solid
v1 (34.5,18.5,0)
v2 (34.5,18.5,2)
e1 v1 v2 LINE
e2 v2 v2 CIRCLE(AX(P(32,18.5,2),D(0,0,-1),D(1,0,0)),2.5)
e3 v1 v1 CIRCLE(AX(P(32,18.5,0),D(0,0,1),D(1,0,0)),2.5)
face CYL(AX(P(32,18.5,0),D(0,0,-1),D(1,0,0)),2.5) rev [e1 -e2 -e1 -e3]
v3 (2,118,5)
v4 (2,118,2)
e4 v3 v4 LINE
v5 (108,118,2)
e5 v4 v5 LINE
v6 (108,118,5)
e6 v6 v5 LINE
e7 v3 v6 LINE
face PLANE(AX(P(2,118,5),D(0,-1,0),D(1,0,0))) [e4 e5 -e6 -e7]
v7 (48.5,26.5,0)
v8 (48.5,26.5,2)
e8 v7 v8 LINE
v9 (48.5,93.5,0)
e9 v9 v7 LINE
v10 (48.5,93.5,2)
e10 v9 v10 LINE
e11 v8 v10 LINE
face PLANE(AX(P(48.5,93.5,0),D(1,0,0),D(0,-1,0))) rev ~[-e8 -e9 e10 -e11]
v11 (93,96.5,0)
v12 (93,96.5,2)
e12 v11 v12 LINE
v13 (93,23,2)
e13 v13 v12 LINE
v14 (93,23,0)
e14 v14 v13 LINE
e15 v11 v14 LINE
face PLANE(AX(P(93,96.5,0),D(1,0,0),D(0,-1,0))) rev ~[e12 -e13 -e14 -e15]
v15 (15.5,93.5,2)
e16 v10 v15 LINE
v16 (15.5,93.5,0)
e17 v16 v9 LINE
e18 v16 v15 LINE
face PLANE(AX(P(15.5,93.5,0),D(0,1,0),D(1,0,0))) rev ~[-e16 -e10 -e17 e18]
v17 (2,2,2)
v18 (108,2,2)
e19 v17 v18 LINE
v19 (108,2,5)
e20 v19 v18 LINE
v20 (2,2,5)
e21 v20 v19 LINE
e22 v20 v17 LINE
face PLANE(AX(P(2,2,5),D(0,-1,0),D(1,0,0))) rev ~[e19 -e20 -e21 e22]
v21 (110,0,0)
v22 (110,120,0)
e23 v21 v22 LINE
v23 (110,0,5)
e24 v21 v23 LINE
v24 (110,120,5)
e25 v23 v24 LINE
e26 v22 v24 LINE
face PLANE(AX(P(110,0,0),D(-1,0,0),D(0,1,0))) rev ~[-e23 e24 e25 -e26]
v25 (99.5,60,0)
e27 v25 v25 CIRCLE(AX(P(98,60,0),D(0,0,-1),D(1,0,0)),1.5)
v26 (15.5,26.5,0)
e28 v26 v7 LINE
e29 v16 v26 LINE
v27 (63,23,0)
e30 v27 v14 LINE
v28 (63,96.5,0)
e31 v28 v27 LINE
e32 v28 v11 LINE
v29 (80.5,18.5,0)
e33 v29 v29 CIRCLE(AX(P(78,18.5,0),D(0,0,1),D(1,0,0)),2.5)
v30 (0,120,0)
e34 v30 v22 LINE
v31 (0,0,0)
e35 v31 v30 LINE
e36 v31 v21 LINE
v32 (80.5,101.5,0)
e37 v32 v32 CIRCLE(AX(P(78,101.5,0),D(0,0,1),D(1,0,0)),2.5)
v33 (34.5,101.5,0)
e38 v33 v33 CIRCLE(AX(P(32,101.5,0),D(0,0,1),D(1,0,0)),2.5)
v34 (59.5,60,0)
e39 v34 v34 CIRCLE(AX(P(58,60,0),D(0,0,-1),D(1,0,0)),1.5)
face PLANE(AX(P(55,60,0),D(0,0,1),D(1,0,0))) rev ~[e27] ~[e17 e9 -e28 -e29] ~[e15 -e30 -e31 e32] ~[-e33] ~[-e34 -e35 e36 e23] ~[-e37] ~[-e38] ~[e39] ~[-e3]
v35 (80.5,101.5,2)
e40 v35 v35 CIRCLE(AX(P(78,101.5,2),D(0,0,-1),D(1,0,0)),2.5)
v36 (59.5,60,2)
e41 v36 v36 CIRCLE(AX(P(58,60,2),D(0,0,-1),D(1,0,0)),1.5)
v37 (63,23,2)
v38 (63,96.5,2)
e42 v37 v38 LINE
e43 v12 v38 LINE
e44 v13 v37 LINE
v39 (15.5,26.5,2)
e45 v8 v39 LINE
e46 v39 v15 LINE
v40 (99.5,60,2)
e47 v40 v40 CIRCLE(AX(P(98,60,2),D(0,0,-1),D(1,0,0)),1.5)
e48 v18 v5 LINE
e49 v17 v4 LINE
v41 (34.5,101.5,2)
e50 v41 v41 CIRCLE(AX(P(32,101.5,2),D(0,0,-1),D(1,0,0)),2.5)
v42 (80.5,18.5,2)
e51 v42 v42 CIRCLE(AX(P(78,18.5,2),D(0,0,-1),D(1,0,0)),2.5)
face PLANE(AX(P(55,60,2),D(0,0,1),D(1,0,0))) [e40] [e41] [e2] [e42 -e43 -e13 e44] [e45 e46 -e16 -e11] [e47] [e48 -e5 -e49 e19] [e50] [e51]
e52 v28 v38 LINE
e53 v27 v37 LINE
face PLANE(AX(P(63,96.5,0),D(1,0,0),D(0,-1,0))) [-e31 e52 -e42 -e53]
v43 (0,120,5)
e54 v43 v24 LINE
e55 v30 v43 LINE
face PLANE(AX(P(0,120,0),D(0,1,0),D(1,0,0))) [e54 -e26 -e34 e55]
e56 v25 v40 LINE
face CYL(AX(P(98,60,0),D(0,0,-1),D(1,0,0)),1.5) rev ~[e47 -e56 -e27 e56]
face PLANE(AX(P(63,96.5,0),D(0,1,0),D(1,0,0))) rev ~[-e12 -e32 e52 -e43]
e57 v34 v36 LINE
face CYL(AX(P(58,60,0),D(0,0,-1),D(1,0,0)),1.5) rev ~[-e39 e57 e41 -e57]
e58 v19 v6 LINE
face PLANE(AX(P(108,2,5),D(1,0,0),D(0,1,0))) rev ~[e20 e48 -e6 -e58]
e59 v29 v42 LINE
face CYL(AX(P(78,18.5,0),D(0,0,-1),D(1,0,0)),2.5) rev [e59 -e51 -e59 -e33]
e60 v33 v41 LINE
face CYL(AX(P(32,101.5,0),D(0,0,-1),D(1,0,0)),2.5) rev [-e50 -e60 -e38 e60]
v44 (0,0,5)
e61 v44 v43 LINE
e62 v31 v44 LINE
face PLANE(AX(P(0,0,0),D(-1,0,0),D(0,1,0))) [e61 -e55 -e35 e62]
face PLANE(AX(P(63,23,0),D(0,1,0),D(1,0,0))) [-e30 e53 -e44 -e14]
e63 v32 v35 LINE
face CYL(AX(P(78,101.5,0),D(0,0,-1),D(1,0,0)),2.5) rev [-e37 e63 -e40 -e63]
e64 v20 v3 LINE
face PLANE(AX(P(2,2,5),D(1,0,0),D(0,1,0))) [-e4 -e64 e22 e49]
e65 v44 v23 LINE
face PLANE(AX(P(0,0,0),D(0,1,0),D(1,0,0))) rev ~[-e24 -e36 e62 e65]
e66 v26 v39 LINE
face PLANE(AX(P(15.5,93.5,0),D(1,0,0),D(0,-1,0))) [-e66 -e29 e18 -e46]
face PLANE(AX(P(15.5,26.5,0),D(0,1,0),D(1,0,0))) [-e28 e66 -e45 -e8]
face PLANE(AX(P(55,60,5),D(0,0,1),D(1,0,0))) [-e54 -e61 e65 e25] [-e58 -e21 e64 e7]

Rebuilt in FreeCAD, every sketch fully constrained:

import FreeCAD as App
import Part
import Sketcher


def add_polygon(sketch, points):
    """Adds a closed chain of lines whose ends are joined by coincident constraints."""
    first, n = sketch.GeometryCount, len(points)
    for a, b in zip(points, points[1:] + points[:1]):
        sketch.addGeometry(Part.LineSegment(App.Vector(*a, 0), App.Vector(*b, 0)), False)
    for i in range(n):
        sketch.addConstraint(Sketcher.Constraint("Coincident", first + i, 2, first + (i + 1) % n, 1))

doc = App.newDocument("Part")
params = doc.addObject("Spreadsheet::Sheet", "Params")
for row, (alias, value) in enumerate([
    ("sketch1_diameter", "5 mm"),
    ("sketch1_width", "110 mm"),
    ("sketch1_height", "120 mm"),
    ("pad1_length", "5 mm"),
    ("sketch2_width", "106 mm"),
    ("sketch2_height", "116 mm"),
    ("pocket1_length", "3 mm"),
    ("sketch3_diameter", "3 mm"),
    ("sketch3_width", "33 mm"),
    ("sketch3_width2", "30 mm"),
    ("sketch3_height", "67 mm"),
    ("sketch3_height2", "73.5 mm"),
], start=1):
    params.set(f"A{row}", alias)
    params.set(f"B{row}", "=" + value)
    params.setAlias(f"B{row}", alias)

body = doc.addObject("PartDesign::Body", "Body")

# Sketch on XY plane
sketch1 = body.newObject("Sketcher::SketchObject", "Sketch")
sketch1.AttachmentSupport = (doc.getObject("XY_Plane"), [""])
sketch1.MapMode = "FlatFace"
add_polygon(sketch1, [(0, 120), (0, 0), (110, 0), (110, 120)])  # lines 0-3
sketch1.addGeometry(Part.Circle(App.Vector(32, 18.5, 0), App.Vector(0, 0, 1), 2.5), False)  # 4
sketch1.addGeometry(Part.Circle(App.Vector(78, 18.5, 0), App.Vector(0, 0, 1), 2.5), False)  # 5
sketch1.addGeometry(Part.Circle(App.Vector(32, 101.5, 0), App.Vector(0, 0, 1), 2.5), False)  # 6
sketch1.addGeometry(Part.Circle(App.Vector(78, 101.5, 0), App.Vector(0, 0, 1), 2.5), False)  # 7
sketch1.addConstraint([
    Sketcher.Constraint("Vertical", 0),
    Sketcher.Constraint("Horizontal", 1),
    Sketcher.Constraint("Vertical", 2),
    Sketcher.Constraint("Horizontal", 3),
    Sketcher.Constraint("Coincident", 0, 2, -1, 1),
    Sketcher.Constraint("Equal", 4, 5),
    Sketcher.Constraint("Equal", 5, 6),
    Sketcher.Constraint("Equal", 6, 7),
    Sketcher.Constraint("Horizontal", 4, 3, 5, 3),
    Sketcher.Constraint("Horizontal", 6, 3, 7, 3),
    Sketcher.Constraint("Vertical", 4, 3, 6, 3),
    Sketcher.Constraint("Vertical", 5, 3, 7, 3),
    Sketcher.Constraint("Diameter", 4, 5.0),
    Sketcher.Constraint("DistanceX", 1, 1, 1, 2, 110.0),
    Sketcher.Constraint("DistanceY", 0, 2, 0, 1, 120.0),
    Sketcher.Constraint("DistanceX", -1, 1, 4, 3, 32.0),
    Sketcher.Constraint("DistanceX", -1, 1, 5, 3, 78.0),
    Sketcher.Constraint("DistanceY", 4, 3, 6, 3, 83.0),
    Sketcher.Constraint("DistanceY", -1, 1, 4, 3, 18.5),
])
sketch1.setExpression("Constraints[16]", "Params.sketch1_diameter")
sketch1.setExpression("Constraints[17]", "Params.sketch1_width")
sketch1.setExpression("Constraints[18]", "Params.sketch1_height")
pad1 = body.newObject("PartDesign::Pad", "Pad")
pad1.Profile = sketch1
pad1.setExpression("Length", "Params.pad1_length")

# Sketch on XY plane
sketch2 = body.newObject("Sketcher::SketchObject", "Sketch001")
sketch2.AttachmentSupport = (doc.getObject("XY_Plane"), [""])
sketch2.MapMode = "FlatFace"
sketch2.AttachmentOffset = App.Placement(App.Vector(0, 0, 5), App.Rotation())
add_polygon(sketch2, [(2, 118), (2, 2), (108, 2), (108, 118)])  # lines 0-3
sketch2.addConstraint([
    Sketcher.Constraint("Vertical", 0),
    Sketcher.Constraint("Horizontal", 1),
    Sketcher.Constraint("Vertical", 2),
    Sketcher.Constraint("Horizontal", 3),
    Sketcher.Constraint("DistanceX", 1, 1, 1, 2, 106.0),
    Sketcher.Constraint("DistanceY", 0, 2, 0, 1, 116.0),
    Sketcher.Constraint("DistanceX", -1, 1, 0, 2, 2.0),
    Sketcher.Constraint("DistanceY", -1, 1, 0, 2, 2.0),
])
sketch2.setExpression("Constraints[8]", "Params.sketch2_width")
sketch2.setExpression("Constraints[9]", "Params.sketch2_height")
pocket1 = body.newObject("PartDesign::Pocket", "Pocket")
pocket1.Profile = sketch2
pocket1.setExpression("Length", "Params.pocket1_length")

# Sketch on XY plane
sketch3 = body.newObject("Sketcher::SketchObject", "Sketch002")
sketch3.AttachmentSupport = (doc.getObject("XY_Plane"), [""])
sketch3.MapMode = "FlatFace"
sketch3.addGeometry(Part.Circle(App.Vector(58, 60, 0), App.Vector(0, 0, 1), 1.5), False)  # 0
sketch3.addGeometry(Part.Circle(App.Vector(98, 60, 0), App.Vector(0, 0, 1), 1.5), False)  # 1
add_polygon(sketch3, [(15.5, 26.5), (15.5, 93.5), (48.5, 93.5), (48.5, 26.5)])  # lines 2-5
add_polygon(sketch3, [(63, 23), (63, 96.5), (93, 96.5), (93, 23)])  # lines 6-9
sketch3.addConstraint([
    Sketcher.Constraint("Vertical", 2),
    Sketcher.Constraint("Horizontal", 3),
    Sketcher.Constraint("Vertical", 4),
    Sketcher.Constraint("Horizontal", 5),
    Sketcher.Constraint("Vertical", 6),
    Sketcher.Constraint("Horizontal", 7),
    Sketcher.Constraint("Vertical", 8),
    Sketcher.Constraint("Horizontal", 9),
    Sketcher.Constraint("Equal", 0, 1),
    Sketcher.Constraint("Horizontal", 0, 3, 1, 3),
    Sketcher.Constraint("Diameter", 0, 3.0),
    Sketcher.Constraint("DistanceX", 3, 1, 3, 2, 33.0),
    Sketcher.Constraint("DistanceX", 7, 1, 7, 2, 30.0),
    Sketcher.Constraint("DistanceY", 2, 1, 2, 2, 67.0),
    Sketcher.Constraint("DistanceY", 6, 1, 6, 2, 73.5),
    Sketcher.Constraint("DistanceX", -1, 1, 0, 3, 58.0),
    Sketcher.Constraint("DistanceY", -1, 1, 0, 3, 60.0),
    Sketcher.Constraint("DistanceX", -1, 1, 1, 3, 98.0),
    Sketcher.Constraint("DistanceX", -1, 1, 6, 2, 63.0),
    Sketcher.Constraint("DistanceY", -1, 1, 8, 2, 23.0),
    Sketcher.Constraint("DistanceY", 3, 2, 6, 2, 3.0),
    Sketcher.Constraint("DistanceX", -1, 1, 2, 2, 15.5),
])
sketch3.setExpression("Constraints[18]", "Params.sketch3_diameter")
sketch3.setExpression("Constraints[19]", "Params.sketch3_width")
sketch3.setExpression("Constraints[20]", "Params.sketch3_width2")
sketch3.setExpression("Constraints[21]", "Params.sketch3_height")
sketch3.setExpression("Constraints[22]", "Params.sketch3_height2")
pocket2 = body.newObject("PartDesign::Pocket", "Pocket001")
pocket2.Profile = sketch3
pocket2.Type = "ThroughAll"
pocket2.Reversed = True

doc.recompute()
